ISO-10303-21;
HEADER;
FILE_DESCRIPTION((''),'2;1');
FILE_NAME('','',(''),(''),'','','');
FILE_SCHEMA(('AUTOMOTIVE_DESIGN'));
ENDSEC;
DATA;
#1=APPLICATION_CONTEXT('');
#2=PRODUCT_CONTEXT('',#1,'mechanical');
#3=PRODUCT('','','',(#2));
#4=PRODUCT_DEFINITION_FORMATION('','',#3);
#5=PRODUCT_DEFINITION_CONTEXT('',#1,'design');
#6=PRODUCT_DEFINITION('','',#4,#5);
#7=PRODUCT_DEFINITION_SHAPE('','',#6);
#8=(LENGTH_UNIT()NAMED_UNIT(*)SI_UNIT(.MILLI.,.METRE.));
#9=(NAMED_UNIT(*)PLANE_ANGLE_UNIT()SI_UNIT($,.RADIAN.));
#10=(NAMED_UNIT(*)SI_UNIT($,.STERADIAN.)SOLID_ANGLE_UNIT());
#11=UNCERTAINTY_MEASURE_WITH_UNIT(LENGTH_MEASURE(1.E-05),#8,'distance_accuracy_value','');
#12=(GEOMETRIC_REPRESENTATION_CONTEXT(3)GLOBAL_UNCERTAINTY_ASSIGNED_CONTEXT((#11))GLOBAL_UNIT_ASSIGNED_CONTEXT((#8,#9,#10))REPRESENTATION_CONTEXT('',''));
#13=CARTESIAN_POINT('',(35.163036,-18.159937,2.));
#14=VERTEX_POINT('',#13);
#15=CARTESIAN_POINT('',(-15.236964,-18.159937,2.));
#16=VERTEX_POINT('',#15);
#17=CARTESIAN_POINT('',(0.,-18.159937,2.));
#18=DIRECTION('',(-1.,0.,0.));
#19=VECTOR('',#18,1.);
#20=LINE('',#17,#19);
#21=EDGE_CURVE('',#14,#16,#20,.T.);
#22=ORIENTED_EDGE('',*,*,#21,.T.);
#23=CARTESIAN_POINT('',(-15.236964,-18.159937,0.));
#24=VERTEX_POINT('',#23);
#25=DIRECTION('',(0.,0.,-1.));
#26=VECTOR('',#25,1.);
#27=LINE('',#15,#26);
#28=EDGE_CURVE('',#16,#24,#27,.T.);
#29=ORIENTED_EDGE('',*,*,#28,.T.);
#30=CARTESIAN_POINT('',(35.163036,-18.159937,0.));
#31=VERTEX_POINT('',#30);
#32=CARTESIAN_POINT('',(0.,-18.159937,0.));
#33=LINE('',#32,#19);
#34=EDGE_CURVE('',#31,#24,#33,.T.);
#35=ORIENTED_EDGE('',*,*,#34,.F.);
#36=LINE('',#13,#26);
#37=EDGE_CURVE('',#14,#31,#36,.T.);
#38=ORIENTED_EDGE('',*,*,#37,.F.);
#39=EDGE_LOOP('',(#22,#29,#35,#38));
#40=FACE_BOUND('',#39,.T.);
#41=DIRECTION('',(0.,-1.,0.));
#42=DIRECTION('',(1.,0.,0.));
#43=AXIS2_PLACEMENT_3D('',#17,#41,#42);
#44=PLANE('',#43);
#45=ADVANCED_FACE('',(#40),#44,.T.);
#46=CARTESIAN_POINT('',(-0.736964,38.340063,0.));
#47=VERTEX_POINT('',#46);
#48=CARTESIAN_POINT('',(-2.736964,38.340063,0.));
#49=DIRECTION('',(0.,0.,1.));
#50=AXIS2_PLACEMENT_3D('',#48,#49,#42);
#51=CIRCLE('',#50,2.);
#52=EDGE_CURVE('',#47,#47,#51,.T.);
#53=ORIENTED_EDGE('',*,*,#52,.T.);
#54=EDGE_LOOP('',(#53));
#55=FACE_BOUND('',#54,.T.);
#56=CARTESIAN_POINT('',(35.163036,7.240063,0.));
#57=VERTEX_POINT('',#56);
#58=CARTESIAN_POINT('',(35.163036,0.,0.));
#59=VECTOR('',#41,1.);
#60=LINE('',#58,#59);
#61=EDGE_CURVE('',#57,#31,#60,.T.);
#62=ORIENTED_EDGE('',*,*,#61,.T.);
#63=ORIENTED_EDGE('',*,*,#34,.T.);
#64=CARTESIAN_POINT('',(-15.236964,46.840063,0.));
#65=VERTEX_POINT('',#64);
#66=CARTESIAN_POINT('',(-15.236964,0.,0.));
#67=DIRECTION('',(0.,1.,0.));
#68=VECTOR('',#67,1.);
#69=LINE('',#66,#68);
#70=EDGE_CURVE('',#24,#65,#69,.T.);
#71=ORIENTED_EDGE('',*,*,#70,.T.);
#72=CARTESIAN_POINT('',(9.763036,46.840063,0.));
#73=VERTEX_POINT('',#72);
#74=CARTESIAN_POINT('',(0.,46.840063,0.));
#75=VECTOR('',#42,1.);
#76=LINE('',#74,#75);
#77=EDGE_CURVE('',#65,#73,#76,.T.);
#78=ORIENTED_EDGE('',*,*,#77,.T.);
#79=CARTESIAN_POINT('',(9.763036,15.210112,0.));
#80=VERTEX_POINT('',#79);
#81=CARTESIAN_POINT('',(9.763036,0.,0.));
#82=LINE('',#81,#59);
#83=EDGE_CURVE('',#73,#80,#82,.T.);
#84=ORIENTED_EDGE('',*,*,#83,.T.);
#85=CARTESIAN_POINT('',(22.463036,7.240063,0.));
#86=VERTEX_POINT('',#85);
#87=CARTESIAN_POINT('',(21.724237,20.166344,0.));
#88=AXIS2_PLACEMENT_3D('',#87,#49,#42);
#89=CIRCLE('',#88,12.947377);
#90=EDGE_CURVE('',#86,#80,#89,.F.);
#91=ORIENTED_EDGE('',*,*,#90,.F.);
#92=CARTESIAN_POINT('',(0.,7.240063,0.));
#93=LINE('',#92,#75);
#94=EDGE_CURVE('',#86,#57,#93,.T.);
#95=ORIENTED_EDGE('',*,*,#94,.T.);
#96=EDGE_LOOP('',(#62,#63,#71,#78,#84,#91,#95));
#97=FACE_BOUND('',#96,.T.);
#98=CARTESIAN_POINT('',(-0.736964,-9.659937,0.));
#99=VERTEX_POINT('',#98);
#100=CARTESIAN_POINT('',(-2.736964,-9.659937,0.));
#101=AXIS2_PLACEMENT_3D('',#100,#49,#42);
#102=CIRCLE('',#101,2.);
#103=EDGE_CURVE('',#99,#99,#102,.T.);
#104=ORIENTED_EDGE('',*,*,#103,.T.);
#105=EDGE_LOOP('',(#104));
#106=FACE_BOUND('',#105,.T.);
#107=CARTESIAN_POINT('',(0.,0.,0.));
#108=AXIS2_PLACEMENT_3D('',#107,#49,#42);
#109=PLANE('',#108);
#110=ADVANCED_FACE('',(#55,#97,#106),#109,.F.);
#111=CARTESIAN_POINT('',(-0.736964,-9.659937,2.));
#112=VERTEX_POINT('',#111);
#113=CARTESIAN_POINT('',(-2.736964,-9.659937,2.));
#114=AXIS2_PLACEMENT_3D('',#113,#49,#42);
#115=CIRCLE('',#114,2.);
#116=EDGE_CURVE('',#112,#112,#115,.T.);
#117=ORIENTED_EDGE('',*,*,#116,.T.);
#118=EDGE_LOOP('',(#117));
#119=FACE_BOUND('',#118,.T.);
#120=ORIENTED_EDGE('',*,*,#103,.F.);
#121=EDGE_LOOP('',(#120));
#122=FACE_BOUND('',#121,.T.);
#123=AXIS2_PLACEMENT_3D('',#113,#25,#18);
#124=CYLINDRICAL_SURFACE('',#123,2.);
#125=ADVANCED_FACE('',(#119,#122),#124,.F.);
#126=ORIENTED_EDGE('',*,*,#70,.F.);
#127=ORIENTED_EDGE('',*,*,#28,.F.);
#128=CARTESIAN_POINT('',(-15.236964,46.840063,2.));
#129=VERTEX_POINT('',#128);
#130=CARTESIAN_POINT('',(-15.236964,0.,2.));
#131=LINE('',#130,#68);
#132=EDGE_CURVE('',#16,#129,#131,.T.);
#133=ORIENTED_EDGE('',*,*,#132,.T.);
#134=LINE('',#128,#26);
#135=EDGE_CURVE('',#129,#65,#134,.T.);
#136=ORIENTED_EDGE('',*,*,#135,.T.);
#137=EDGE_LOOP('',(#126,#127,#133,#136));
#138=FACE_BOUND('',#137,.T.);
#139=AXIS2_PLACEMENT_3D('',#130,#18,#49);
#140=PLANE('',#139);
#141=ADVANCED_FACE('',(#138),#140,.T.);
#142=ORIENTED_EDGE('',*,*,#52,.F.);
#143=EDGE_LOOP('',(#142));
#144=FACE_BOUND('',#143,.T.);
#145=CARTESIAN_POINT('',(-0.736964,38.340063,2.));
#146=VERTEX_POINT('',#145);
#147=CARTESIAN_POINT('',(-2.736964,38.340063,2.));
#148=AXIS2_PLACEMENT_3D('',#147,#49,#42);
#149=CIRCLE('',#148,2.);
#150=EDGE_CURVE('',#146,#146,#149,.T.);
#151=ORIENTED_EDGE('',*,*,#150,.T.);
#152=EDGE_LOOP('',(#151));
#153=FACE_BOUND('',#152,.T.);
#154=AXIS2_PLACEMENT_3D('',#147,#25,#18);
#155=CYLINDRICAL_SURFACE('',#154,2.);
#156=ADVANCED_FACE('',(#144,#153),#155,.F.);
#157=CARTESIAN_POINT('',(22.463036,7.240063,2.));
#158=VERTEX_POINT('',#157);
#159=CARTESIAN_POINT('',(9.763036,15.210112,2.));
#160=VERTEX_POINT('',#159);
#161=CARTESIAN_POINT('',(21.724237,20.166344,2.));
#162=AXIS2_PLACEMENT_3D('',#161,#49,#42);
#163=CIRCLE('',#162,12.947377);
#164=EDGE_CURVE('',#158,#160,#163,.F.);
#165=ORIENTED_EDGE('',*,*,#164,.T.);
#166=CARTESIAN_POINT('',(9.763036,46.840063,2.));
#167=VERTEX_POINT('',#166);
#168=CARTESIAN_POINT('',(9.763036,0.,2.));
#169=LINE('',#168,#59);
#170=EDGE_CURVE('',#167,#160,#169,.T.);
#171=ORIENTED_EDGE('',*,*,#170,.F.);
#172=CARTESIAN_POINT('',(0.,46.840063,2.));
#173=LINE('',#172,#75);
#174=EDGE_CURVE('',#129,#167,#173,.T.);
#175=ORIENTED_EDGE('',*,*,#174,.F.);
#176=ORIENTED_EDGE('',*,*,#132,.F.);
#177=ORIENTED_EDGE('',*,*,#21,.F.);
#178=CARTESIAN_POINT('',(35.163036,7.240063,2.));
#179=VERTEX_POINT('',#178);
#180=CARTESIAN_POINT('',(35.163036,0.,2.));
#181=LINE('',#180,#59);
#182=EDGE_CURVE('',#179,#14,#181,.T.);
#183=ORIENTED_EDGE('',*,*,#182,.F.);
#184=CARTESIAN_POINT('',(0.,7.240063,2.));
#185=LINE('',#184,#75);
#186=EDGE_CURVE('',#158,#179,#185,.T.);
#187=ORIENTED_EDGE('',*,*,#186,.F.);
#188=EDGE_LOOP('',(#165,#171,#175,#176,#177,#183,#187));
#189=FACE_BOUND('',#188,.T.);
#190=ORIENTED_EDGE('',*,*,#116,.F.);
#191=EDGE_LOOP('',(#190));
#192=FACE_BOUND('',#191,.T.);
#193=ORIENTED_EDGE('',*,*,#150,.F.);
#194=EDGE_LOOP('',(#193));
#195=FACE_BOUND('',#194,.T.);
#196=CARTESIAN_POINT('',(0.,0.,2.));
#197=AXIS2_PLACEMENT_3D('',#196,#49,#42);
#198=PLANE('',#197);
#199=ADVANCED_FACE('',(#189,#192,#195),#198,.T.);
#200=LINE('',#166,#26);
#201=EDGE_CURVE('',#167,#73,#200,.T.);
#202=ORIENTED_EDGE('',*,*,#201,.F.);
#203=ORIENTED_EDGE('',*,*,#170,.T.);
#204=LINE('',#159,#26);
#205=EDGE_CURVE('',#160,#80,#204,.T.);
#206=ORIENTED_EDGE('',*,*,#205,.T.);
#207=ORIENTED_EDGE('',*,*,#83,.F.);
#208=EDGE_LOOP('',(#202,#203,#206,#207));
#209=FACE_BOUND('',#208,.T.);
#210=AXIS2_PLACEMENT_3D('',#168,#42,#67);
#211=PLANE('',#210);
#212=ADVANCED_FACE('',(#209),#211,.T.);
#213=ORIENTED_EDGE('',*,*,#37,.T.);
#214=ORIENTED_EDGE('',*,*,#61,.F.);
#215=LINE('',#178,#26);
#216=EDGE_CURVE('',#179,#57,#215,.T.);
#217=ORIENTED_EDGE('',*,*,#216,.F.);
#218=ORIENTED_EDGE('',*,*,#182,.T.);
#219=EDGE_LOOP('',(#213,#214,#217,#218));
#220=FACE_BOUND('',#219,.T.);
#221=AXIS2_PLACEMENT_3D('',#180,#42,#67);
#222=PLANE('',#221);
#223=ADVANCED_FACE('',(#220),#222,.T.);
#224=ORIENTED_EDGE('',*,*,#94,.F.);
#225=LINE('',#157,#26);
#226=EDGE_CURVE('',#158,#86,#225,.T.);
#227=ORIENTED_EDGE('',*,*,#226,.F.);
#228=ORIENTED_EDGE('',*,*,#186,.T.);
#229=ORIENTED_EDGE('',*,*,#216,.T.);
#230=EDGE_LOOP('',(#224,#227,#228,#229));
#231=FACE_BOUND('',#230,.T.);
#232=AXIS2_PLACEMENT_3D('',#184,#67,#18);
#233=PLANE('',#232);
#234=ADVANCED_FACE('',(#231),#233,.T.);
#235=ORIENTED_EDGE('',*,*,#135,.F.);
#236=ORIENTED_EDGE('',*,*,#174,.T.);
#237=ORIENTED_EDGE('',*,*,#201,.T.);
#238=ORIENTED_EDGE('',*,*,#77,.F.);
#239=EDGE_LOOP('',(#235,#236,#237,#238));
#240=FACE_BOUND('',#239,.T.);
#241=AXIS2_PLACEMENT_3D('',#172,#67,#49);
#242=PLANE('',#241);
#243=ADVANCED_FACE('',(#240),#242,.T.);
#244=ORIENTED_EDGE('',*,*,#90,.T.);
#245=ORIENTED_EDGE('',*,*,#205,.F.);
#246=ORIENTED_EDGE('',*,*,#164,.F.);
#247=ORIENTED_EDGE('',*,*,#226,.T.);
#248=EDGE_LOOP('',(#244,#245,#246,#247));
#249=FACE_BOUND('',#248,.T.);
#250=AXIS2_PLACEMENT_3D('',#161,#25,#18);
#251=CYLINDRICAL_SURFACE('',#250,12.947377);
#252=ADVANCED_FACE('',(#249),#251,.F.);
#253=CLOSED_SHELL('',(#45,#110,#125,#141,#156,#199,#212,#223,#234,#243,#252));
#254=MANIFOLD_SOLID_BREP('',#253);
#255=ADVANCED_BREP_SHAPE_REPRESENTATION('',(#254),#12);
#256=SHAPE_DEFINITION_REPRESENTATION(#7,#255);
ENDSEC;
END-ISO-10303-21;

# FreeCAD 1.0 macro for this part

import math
import FreeCAD as App
import Part
import Sketcher

V = App.Vector
Q = App.Units.Quantity

doc = App.newDocument("Part")
body = doc.addObject("PartDesign::Body", "Body")

# Sketch on XY plane
sketch1 = body.newObject("Sketcher::SketchObject", "Sketch")
sketch1.AttachmentSupport = (doc.getObject("XY_Plane"), [""])
sketch1.MapMode = "FlatFace"
sketch1.addGeometry([
    Part.LineSegment(V(-15.236964, 46.840063, 0), V(-15.236964, -18.159937, 0)),  # 0
    Part.LineSegment(V(-15.236964, -18.159937, 0), V(35.163036, -18.159937, 0)),  # 1
    Part.LineSegment(V(35.163036, -18.159937, 0), V(35.163036, 7.240063, 0)),  # 2
    Part.LineSegment(V(35.163036, 7.240063, 0), V(22.463036, 7.240063, 0)),  # 3
    Part.ArcOfCircle(Part.Circle(V(21.724237, 20.166344, 0), V(0, 0, 1), 12.947377), math.radians(-157.492886), math.radians(-86.728833)),  # 4
    Part.LineSegment(V(9.763036, 15.210112, 0), V(9.763036, 46.840063, 0)),  # 5
    Part.LineSegment(V(9.763036, 46.840063, 0), V(-15.236964, 46.840063, 0)),  # 6
    Part.Circle(V(-2.736964, -9.659937, 0), V(0, 0, 1), 2),  # 7
    Part.Circle(V(-2.736964, 38.340063, 0), V(0, 0, 1), 2),  # 8
], False)
sketch1.addConstraint([
    Sketcher.Constraint("Coincident", 0, 2, 1, 1),
    Sketcher.Constraint("Coincident", 1, 2, 2, 1),
    Sketcher.Constraint("Coincident", 2, 2, 3, 1),
    Sketcher.Constraint("Coincident", 3, 2, 4, 2),
    Sketcher.Constraint("Coincident", 4, 1, 5, 1),
    Sketcher.Constraint("Coincident", 5, 2, 6, 1),
    Sketcher.Constraint("Coincident", 6, 2, 0, 1),
    Sketcher.Constraint("Vertical", 0),
    Sketcher.Constraint("Horizontal", 1),
    Sketcher.Constraint("Vertical", 2),
    Sketcher.Constraint("Horizontal", 3),
    Sketcher.Constraint("Vertical", 5),
    Sketcher.Constraint("Horizontal", 6),
    Sketcher.Constraint("Equal", 7, 8),
    Sketcher.Constraint("Vertical", 7, 3, 8, 3),
    Sketcher.Constraint("Diameter", 7, Q("4 mm")),
    Sketcher.Constraint("DistanceX", 6, 2, 6, 1, Q("25 mm")),
    Sketcher.Constraint("DistanceY", 0, 2, 0, 1, Q("65 mm")),
    Sketcher.Constraint("DistanceX", 1, 1, 1, 2, Q("50.4 mm")),
    Sketcher.Constraint("DistanceX", 3, 2, 3, 1, Q("12.7 mm")),
    Sketcher.Constraint("DistanceY", 2, 1, 2, 2, Q("25.4 mm")),
    Sketcher.Constraint("DistanceY", 7, 3, 8, 3, Q("48 mm")),
    Sketcher.Constraint("DistanceX", 0, 2, 7, 3, Q("12.5 mm")),
    Sketcher.Constraint("DistanceY", 0, 2, 7, 3, Q("8.5 mm")),
    Sketcher.Constraint("Radius", 4, Q("12.947377 mm")),
    Sketcher.Constraint("DistanceY", 5, 1, 5, 2, Q("31.62995 mm")),
    Sketcher.Constraint("DistanceX", -1, 1, 4, 3, Q("21.724237 mm")),
    Sketcher.Constraint("DistanceY", -1, 1, 4, 3, Q("20.166344 mm")),
])
pad1 = body.newObject("PartDesign::Pad", "Pad")
pad1.Profile = sketch1
pad1.Length = 2

doc.recompute()
